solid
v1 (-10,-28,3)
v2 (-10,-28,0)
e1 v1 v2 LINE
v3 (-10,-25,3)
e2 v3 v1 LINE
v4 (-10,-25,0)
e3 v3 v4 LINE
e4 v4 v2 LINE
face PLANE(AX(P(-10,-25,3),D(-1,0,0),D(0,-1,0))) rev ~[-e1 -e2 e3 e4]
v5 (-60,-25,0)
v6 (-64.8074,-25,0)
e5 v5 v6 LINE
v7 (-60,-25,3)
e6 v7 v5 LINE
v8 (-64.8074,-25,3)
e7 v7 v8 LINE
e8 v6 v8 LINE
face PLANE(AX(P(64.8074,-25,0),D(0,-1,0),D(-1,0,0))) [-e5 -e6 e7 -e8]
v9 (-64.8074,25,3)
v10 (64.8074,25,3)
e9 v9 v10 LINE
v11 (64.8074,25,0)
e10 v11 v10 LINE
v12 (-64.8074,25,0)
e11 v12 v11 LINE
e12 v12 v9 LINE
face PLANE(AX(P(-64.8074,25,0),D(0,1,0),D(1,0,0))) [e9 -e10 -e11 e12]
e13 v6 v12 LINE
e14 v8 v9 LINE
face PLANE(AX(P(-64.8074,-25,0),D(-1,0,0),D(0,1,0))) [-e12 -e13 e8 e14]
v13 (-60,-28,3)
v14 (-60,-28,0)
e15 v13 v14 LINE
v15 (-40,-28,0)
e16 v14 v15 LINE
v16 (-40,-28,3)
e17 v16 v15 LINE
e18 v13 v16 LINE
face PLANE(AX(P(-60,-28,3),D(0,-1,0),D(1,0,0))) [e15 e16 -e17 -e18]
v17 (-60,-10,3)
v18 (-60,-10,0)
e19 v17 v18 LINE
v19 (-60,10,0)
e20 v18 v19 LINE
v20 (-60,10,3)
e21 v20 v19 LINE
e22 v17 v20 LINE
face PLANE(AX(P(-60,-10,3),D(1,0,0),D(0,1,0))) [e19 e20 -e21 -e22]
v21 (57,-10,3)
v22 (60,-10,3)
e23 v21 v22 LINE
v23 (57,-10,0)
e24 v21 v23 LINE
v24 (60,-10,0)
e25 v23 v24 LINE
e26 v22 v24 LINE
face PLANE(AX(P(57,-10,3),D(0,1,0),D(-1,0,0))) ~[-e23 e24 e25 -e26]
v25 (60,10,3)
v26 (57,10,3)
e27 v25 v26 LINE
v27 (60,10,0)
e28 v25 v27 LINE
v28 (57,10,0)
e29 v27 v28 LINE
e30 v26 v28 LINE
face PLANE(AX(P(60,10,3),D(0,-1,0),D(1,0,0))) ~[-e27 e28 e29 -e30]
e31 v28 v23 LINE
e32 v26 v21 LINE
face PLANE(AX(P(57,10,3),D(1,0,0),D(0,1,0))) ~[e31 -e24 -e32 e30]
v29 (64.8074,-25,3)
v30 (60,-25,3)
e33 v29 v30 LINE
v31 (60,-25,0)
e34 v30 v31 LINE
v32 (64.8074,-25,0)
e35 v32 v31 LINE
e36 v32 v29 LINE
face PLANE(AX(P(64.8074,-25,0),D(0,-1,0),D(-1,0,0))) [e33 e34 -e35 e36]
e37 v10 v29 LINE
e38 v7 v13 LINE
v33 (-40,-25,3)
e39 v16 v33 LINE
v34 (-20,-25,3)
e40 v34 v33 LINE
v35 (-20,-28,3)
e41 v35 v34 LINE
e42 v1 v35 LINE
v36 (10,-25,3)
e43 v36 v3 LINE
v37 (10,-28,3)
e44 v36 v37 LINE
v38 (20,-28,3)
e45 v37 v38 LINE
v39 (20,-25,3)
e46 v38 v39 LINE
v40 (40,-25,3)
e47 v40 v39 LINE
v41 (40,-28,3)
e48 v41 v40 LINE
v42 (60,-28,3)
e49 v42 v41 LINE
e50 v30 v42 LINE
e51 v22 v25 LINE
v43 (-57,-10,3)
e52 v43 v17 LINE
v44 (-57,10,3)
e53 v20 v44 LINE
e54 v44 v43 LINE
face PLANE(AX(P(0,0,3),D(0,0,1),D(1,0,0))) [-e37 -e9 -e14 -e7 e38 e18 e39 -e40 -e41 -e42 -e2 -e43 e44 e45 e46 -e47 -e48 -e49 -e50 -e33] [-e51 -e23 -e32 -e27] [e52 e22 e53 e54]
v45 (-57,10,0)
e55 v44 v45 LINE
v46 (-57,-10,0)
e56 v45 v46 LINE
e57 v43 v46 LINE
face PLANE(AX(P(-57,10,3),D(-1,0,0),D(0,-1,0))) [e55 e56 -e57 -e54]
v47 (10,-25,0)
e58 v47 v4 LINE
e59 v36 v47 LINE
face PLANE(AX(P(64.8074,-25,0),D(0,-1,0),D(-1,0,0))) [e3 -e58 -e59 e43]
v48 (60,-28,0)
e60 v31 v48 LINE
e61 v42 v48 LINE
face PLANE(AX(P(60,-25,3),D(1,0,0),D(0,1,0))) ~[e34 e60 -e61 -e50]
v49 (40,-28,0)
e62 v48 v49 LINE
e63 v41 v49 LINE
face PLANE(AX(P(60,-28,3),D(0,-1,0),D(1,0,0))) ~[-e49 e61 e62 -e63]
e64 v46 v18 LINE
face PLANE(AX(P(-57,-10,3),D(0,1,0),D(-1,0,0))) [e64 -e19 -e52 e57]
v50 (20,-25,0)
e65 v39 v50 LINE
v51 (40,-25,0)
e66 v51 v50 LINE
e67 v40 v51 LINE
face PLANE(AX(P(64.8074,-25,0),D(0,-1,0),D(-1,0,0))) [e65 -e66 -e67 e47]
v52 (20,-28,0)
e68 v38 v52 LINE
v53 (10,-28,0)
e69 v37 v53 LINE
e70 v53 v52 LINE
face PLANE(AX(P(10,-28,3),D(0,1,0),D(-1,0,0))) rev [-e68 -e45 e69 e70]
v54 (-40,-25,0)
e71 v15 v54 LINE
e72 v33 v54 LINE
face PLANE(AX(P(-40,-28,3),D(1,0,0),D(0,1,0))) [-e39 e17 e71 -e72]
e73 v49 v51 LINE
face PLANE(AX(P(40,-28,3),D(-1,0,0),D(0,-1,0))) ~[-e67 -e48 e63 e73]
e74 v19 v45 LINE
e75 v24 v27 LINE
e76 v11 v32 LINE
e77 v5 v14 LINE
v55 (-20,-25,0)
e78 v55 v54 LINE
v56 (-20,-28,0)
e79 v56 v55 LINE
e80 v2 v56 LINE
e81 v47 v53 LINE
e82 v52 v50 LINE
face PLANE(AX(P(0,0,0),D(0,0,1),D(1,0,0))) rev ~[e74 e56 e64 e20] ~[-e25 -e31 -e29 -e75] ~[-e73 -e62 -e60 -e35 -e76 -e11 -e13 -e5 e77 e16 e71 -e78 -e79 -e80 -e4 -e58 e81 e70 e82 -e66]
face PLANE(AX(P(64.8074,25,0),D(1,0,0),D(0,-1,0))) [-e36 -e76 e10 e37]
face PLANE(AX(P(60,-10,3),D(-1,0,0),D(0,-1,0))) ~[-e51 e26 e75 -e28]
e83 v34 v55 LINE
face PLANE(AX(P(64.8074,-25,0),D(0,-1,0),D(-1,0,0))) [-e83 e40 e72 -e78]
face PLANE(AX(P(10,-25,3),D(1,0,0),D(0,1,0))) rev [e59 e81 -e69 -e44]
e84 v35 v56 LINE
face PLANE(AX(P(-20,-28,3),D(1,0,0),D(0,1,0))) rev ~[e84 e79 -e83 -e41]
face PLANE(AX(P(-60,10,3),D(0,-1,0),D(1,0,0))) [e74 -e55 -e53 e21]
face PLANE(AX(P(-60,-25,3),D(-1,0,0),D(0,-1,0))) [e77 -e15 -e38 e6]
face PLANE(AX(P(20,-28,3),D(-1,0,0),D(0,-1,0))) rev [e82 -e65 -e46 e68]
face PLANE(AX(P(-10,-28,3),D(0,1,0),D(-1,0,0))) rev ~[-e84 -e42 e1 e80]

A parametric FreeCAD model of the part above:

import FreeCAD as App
import Part
import Sketcher
from FreeCAD import Vector

doc = App.newDocument("Part")
body = doc.addObject("PartDesign::Body", "Body")

# Sketch on XY plane
sketch1 = body.newObject("Sketcher::SketchObject", "Sketch")
sketch1.AttachmentSupport = (doc.getObject("XY_Plane"), [""])
sketch1.MapMode = "FlatFace"
sketch1.addGeometry([
    Part.LineSegment(Vector(-65, -25, 0), Vector(65, -25, 0)),
    Part.LineSegment(Vector(65, -25, 0), Vector(65, 25, 0)),
    Part.LineSegment(Vector(65, 25, 0), Vector(-65, 25, 0)),
    Part.LineSegment(Vector(-65, 25, 0), Vector(-65, -25, 0)),
], False)
sketch1.addConstraint([
    Sketcher.Constraint("Coincident", 0, 2, 1, 1),
    Sketcher.Constraint("Coincident", 1, 2, 2, 1),
    Sketcher.Constraint("Coincident", 2, 2, 3, 1),
    Sketcher.Constraint("Coincident", 3, 2, 0, 1),
    Sketcher.Constraint("Horizontal", 0),
    Sketcher.Constraint("Vertical", 1),
    Sketcher.Constraint("Horizontal", 2),
    Sketcher.Constraint("Vertical", 3),
    Sketcher.Constraint("Symmetric", 0, 2, 2, 2, -1, 1),
    Sketcher.Constraint("DistanceY", 1, 1, 1, 2, 50.0),
    Sketcher.Constraint("DistanceX", 0, 1, 0, 2, 129.6148),
])
pad1 = body.newObject("PartDesign::Pad", "Pad")
pad1.Profile = sketch1
pad1.Length = 3

# Sketch on XY plane
sketch2 = body.newObject("Sketcher::SketchObject", "Sketch001")
sketch2.AttachmentSupport = (doc.getObject("XY_Plane"), [""])
sketch2.MapMode = "FlatFace"
sketch2.AttachmentOffset = App.Placement(Vector(0, 0, 3), App.Rotation())
sketch2.addGeometry([
    Part.LineSegment(Vector(-10, -25, 0), Vector(-20, -25, 0)),  # 0
    Part.LineSegment(Vector(-20, -25, 0), Vector(-20, -28, 0)),  # 1
    Part.LineSegment(Vector(-20, -28, 0), Vector(-10, -28, 0)),  # 2
    Part.LineSegment(Vector(-10, -28, 0), Vector(-10, -25, 0)),  # 3
    Part.LineSegment(Vector(-40, -25, 0), Vector(-60, -25, 0)),  # 4
    Part.LineSegment(Vector(-60, -25, 0), Vector(-60, -28, 0)),  # 5
    Part.LineSegment(Vector(-60, -28, 0), Vector(-40, -28, 0)),  # 6
    Part.LineSegment(Vector(-40, -28, 0), Vector(-40, -25, 0)),  # 7
], False)
sketch2.addConstraint([
    Sketcher.Constraint("Coincident", 0, 2, 1, 1),
    Sketcher.Constraint("Coincident", 1, 2, 2, 1),
    Sketcher.Constraint("Coincident", 2, 2, 3, 1),
    Sketcher.Constraint("Coincident", 3, 2, 0, 1),
    Sketcher.Constraint("Coincident", 4, 2, 5, 1),
    Sketcher.Constraint("Coincident", 5, 2, 6, 1),
    Sketcher.Constraint("Coincident", 6, 2, 7, 1),
    Sketcher.Constraint("Coincident", 7, 2, 4, 1),
    Sketcher.Constraint("Horizontal", 0),
    Sketcher.Constraint("Vertical", 1),
    Sketcher.Constraint("Horizontal", 2),
    Sketcher.Constraint("Vertical", 3),
    Sketcher.Constraint("Horizontal", 4),
    Sketcher.Constraint("Vertical", 5),
    Sketcher.Constraint("Horizontal", 6),
    Sketcher.Constraint("Vertical", 7),
    Sketcher.Constraint("Horizontal", 3, 2, 4, 2),
    Sketcher.Constraint("Horizontal", 2, 2, 5, 2),
    Sketcher.Constraint("DistanceX", 0, 2, 0, 1, 10.0),
    Sketcher.Constraint("DistanceX", 4, 2, 4, 1, 20.0),
    Sketcher.Constraint("DistanceY", 1, 2, 1, 1, 3.0),
    Sketcher.Constraint("DistanceX", 0, 2, -1, 1, 20.0),
    Sketcher.Constraint("DistanceX", 6, 2, 1, 2, 20.0),
    Sketcher.Constraint("DistanceY", 0, 2, -1, 1, 25.0),
])
pad2 = body.newObject("PartDesign::Pad", "Pad001")
pad2.Profile = sketch2
pad2.Length = 3
pad2.Reversed = True

# Sketch on XY plane
sketch3 = body.newObject("Sketcher::SketchObject", "Sketch002")
sketch3.AttachmentSupport = (doc.getObject("XY_Plane"), [""])
sketch3.MapMode = "FlatFace"
sketch3.AttachmentOffset = App.Placement(Vector(0, 0, 3), App.Rotation())
sketch3.addGeometry([
    Part.LineSegment(Vector(-57, 10, 0), Vector(-60, 10, 0)),
    Part.LineSegment(Vector(-60, 10, 0), Vector(-60, -10, 0)),
    Part.LineSegment(Vector(-60, -10, 0), Vector(-57, -10, 0)),
    Part.LineSegment(Vector(-57, -10, 0), Vector(-57, 10, 0)),
], False)
sketch3.addConstraint([
    Sketcher.Constraint("Coincident", 0, 2, 1, 1),
    Sketcher.Constraint("Coincident", 1, 2, 2, 1),
    Sketcher.Constraint("Coincident", 2, 2, 3, 1),
    Sketcher.Constraint("Coincident", 3, 2, 0, 1),
    Sketcher.Constraint("Horizontal", 0),
    Sketcher.Constraint("Vertical", 1),
    Sketcher.Constraint("Horizontal", 2),
    Sketcher.Constraint("Vertical", 3),
    Sketcher.Constraint("DistanceX", 0, 2, 0, 1, 3.0),
    Sketcher.Constraint("DistanceY", 1, 2, 1, 1, 20.0),
    Sketcher.Constraint("DistanceX", 2, 2, -1, 1, 57.0),
    Sketcher.Constraint("DistanceY", -1, 1, 0, 2, 10.0),
])
pocket1 = body.newObject("PartDesign::Pocket", "Pocket")
pocket1.Profile = sketch3
pocket1.Length = 3
doc.recompute()

mirrored = body.newObject("PartDesign::Mirrored", "Mirrored")
mirrored.Originals = [pad2, pocket1]
mirrored.MirrorPlane = (doc.getObject("YZ_Plane"), [""])
body.Tip = mirrored

doc.recompute()
